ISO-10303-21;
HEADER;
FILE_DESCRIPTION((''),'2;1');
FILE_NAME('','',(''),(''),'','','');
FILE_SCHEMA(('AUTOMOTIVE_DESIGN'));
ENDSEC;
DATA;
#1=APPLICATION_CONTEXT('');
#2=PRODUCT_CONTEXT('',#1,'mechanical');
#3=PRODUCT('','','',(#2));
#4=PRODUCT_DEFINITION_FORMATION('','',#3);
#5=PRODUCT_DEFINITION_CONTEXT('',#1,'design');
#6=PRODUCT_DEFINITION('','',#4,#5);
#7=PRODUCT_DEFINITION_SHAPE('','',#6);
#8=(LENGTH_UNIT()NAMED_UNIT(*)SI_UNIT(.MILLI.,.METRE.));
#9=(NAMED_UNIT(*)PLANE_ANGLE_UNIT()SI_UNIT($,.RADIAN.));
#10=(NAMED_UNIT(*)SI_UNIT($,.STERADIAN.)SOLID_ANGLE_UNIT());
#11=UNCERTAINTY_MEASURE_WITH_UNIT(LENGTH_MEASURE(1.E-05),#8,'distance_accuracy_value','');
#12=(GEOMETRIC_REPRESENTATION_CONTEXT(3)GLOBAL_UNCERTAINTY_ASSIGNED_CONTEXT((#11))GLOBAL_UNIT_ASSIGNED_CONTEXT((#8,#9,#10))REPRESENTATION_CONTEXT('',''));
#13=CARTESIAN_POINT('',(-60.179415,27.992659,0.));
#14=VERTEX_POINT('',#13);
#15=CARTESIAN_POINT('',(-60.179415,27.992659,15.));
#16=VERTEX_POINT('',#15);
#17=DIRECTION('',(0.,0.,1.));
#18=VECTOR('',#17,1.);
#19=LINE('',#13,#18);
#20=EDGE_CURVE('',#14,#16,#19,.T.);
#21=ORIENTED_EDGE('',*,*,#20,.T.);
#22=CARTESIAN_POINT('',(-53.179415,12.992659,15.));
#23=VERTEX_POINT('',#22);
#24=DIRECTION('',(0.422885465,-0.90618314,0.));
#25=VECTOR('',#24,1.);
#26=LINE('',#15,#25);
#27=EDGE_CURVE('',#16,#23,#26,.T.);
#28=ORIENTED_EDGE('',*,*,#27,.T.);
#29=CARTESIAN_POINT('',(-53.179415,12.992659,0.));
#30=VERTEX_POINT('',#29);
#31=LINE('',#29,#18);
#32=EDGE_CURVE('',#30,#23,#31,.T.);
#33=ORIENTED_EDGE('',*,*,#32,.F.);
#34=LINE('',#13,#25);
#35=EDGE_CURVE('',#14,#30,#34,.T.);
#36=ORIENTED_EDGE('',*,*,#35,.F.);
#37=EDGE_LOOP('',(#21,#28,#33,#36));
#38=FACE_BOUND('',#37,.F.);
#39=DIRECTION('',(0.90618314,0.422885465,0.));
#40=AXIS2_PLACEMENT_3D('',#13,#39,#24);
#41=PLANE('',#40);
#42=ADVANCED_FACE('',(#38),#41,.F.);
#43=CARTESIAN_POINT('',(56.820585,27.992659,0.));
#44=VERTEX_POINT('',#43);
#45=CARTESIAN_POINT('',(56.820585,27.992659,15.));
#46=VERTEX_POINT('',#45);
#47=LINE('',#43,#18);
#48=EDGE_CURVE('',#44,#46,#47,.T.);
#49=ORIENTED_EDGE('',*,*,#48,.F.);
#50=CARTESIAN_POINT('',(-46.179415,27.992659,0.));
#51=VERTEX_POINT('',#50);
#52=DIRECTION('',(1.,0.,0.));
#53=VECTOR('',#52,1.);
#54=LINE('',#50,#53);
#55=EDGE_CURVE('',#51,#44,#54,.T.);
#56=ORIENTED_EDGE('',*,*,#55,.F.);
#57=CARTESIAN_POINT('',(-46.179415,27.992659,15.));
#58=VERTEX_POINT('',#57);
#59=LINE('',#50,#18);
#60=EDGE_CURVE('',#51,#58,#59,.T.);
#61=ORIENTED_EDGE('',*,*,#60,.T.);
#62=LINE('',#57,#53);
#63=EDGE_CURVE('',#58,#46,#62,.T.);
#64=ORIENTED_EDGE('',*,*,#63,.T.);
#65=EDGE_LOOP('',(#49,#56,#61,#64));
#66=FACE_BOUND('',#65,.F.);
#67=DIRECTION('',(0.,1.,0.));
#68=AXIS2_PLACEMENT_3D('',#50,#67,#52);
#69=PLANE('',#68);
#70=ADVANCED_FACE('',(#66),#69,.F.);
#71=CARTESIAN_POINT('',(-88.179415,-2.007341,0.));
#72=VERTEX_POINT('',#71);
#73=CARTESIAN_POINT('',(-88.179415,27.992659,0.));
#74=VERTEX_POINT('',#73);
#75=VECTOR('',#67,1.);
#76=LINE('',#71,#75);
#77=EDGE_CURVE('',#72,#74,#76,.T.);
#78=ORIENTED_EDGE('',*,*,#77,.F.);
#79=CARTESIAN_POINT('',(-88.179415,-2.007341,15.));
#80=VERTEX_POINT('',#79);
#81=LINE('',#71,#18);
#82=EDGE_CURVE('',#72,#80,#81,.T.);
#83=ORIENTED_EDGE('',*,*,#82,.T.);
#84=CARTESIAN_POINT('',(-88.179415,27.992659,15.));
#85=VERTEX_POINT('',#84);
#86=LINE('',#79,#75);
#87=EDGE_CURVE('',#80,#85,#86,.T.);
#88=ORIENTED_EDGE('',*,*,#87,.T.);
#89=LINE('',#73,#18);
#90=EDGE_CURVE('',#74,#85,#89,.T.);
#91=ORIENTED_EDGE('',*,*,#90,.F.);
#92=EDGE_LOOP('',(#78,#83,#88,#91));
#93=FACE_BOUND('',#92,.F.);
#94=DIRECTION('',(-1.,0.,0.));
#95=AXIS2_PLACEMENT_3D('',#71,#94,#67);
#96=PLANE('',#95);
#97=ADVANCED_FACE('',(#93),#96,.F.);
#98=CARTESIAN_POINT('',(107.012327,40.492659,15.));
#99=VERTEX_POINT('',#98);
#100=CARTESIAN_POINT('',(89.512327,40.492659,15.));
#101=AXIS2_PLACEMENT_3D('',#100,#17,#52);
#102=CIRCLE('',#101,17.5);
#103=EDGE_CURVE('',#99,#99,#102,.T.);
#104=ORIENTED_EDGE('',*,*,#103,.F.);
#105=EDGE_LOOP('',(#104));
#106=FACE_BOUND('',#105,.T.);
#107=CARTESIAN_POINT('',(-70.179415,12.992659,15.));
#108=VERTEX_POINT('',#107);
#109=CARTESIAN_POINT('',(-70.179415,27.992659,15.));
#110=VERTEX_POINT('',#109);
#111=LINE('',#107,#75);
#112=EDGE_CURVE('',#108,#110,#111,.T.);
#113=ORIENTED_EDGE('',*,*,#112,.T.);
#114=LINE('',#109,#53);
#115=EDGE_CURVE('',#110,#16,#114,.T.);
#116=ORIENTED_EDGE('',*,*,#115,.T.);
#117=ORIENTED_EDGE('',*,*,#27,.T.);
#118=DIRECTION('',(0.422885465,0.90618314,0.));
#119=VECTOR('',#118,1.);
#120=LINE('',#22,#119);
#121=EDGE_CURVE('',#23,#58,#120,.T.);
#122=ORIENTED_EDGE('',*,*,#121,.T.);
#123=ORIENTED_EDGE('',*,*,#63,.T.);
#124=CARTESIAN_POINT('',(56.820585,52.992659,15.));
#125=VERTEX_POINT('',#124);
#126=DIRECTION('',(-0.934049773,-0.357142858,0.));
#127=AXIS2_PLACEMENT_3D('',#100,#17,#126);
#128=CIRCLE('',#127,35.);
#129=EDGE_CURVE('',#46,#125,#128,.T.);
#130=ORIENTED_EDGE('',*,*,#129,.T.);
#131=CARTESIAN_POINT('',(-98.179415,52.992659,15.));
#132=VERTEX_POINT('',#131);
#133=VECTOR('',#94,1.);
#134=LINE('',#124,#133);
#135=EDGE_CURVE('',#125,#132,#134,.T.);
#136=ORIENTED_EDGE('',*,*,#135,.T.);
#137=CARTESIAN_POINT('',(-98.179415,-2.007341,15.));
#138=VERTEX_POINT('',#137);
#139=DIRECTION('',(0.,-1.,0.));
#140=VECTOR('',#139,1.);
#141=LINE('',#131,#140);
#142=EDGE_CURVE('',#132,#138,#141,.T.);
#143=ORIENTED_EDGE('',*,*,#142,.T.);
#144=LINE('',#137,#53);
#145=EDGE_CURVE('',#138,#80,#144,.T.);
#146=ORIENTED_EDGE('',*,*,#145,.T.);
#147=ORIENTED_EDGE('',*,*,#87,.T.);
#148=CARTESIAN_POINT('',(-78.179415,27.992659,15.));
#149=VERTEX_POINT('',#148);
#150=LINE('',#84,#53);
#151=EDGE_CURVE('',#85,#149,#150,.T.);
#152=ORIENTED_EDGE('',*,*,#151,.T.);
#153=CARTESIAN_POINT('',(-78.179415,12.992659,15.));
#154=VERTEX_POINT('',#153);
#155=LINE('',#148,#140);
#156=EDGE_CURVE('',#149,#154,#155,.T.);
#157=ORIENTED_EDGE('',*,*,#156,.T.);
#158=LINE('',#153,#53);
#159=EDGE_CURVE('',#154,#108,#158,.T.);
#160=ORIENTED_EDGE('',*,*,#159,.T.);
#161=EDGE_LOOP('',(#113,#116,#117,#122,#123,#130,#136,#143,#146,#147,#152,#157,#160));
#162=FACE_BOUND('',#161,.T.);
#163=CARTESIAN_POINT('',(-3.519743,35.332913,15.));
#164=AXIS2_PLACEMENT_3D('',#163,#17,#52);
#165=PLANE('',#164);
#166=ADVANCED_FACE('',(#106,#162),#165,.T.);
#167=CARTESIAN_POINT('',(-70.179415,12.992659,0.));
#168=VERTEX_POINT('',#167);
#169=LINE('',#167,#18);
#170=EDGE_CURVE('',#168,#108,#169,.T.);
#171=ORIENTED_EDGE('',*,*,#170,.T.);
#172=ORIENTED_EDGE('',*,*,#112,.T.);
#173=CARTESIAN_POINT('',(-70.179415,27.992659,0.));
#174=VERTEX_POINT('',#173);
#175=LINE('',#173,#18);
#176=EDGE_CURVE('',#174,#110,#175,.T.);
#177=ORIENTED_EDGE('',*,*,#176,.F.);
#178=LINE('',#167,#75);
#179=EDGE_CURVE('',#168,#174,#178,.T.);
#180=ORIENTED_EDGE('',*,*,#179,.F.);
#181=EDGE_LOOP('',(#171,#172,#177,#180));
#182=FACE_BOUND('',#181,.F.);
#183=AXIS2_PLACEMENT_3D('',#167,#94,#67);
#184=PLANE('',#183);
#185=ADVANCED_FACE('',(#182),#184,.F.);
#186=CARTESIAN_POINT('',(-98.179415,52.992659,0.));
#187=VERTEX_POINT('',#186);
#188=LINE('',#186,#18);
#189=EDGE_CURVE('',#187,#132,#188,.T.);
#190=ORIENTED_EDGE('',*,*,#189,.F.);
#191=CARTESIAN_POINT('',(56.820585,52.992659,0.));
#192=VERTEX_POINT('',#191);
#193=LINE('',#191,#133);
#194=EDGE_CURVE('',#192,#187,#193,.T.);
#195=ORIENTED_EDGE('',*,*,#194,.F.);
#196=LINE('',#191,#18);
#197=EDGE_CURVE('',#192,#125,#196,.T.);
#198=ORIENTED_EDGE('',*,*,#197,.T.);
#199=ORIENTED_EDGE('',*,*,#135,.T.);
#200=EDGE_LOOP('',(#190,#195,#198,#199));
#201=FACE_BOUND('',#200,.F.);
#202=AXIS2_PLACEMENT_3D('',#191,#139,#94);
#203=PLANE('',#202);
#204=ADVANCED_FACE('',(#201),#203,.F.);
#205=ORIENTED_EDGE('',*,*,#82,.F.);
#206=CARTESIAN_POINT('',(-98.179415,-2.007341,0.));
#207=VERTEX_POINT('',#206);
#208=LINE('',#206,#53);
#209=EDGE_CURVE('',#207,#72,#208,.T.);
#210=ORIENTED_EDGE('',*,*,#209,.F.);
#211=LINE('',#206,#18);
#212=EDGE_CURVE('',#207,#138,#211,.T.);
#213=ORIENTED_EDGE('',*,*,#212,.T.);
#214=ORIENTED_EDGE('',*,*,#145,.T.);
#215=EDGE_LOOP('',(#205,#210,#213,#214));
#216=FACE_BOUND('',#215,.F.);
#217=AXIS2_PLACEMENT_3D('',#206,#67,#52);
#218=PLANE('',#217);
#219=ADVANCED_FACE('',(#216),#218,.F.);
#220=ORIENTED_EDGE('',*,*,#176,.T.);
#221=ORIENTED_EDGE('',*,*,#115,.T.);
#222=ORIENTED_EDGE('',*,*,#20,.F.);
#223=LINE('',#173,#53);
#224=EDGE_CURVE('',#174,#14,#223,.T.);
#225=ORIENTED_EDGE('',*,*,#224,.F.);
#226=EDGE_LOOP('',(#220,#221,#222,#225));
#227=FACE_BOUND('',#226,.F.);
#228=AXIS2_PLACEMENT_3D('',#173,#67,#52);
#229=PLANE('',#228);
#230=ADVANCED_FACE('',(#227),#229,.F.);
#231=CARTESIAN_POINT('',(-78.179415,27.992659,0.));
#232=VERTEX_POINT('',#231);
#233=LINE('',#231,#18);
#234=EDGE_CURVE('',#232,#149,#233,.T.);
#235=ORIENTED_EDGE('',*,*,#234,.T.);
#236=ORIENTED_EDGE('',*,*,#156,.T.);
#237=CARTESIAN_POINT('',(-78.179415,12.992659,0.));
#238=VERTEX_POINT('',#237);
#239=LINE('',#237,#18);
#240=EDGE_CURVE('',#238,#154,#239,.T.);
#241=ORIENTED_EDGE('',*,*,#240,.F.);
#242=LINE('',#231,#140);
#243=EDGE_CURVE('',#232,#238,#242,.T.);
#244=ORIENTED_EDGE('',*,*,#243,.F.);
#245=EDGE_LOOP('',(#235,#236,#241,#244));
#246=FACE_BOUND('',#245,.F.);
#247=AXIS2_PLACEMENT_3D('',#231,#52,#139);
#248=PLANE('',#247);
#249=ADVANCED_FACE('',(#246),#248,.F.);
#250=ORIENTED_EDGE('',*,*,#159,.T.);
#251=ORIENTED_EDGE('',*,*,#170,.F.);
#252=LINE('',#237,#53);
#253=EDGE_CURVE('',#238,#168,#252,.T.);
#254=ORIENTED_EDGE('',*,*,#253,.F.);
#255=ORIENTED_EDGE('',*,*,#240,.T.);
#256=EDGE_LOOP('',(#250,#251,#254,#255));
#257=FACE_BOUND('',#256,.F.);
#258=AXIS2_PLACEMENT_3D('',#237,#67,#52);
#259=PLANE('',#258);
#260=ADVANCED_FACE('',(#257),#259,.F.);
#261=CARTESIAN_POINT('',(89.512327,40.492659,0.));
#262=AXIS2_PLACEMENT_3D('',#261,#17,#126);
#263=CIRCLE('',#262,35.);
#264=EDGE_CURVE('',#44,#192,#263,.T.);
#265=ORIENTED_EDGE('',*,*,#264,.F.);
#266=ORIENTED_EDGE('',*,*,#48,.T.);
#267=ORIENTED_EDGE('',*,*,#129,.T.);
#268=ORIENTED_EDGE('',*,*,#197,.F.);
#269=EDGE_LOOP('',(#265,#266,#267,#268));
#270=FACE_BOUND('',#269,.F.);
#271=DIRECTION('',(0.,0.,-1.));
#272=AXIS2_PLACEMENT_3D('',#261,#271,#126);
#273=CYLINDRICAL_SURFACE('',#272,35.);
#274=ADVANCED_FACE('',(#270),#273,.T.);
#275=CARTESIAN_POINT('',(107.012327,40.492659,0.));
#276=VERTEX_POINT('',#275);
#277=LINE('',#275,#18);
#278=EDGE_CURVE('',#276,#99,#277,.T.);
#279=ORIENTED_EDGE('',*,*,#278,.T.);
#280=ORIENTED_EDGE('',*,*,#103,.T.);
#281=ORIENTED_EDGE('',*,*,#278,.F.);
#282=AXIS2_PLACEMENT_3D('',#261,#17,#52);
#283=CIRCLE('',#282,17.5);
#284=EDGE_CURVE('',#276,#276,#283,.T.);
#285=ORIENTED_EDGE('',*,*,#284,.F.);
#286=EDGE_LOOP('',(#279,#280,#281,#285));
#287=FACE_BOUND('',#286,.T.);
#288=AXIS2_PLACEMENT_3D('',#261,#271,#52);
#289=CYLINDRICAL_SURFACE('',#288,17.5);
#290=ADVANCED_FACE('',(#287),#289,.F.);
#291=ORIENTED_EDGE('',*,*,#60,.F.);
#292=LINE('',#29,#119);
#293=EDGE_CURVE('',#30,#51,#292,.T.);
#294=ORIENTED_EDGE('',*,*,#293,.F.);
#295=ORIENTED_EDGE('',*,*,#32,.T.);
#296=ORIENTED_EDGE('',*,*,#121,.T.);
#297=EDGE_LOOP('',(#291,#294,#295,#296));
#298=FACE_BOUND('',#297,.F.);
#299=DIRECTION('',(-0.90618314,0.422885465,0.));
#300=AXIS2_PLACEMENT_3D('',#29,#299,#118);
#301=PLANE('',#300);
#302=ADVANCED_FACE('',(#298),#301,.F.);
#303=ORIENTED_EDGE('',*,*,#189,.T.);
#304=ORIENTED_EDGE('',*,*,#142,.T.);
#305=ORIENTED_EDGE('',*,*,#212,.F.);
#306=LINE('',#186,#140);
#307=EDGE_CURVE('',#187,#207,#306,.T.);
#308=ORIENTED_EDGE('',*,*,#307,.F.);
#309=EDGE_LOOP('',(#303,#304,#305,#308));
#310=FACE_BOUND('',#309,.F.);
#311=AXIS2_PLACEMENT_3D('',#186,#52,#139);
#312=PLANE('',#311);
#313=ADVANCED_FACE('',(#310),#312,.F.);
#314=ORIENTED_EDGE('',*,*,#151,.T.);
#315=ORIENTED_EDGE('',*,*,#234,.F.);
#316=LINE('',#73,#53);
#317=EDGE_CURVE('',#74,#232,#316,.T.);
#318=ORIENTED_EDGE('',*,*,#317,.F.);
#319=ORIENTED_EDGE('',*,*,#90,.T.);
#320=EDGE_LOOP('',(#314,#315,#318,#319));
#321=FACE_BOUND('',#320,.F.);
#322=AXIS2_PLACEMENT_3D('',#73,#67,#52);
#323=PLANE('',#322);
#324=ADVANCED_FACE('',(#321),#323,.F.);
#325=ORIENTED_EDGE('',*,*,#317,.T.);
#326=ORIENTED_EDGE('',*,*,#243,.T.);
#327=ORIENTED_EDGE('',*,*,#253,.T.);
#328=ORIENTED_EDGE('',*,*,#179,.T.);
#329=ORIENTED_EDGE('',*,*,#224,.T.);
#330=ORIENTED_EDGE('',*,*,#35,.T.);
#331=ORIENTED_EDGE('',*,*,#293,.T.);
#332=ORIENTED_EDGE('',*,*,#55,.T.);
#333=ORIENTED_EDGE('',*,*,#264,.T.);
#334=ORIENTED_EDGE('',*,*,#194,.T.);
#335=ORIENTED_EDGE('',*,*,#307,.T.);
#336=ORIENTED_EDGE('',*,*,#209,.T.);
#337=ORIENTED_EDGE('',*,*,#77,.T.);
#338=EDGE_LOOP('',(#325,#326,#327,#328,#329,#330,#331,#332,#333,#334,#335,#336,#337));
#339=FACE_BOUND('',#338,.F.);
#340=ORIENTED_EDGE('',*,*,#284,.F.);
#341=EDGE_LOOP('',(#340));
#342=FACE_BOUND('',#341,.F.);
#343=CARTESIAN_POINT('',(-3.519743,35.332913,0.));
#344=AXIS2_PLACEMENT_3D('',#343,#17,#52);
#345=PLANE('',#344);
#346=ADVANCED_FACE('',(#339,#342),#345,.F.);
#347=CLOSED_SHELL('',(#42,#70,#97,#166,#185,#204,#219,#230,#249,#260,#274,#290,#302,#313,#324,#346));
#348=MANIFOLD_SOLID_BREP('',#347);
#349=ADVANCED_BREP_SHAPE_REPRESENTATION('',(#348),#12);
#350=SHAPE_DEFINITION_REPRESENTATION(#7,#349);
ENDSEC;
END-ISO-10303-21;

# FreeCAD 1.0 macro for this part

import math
import FreeCAD as App
import Part
import Sketcher

V = App.Vector

doc = App.newDocument("Part")
body = doc.addObject("PartDesign::Body", "Body")

sketch1 = body.newObject("Sketcher::SketchObject", "Sketch")
sketch1.AttachmentSupport = (doc.getObject("XY_Plane"), [""])
sketch1.MapMode = "FlatFace"
sketch1.addGeometry(Part.LineSegment(V(-88, -2, 0), V(-88, 28, 0)), False)
sketch1.addGeometry(Part.LineSegment(V(-88, 28, 0), V(-78, 28, 0)), False)
sketch1.addGeometry(Part.LineSegment(V(-78, 28, 0), V(-78, 13, 0)), False)
sketch1.addGeometry(Part.LineSegment(V(-78, 13, 0), V(-70, 13, 0)), False)
sketch1.addGeometry(Part.LineSegment(V(-70, 13, 0), V(-70, 28, 0)), False)
sketch1.addGeometry(Part.LineSegment(V(-70, 28, 0), V(-60, 28, 0)), False)
sketch1.addGeometry(Part.LineSegment(V(-60, 28, 0), V(-53, 13, 0)), False)
sketch1.addGeometry(Part.LineSegment(V(-53, 13, 0), V(-46, 28, 0)), False)
sketch1.addGeometry(Part.LineSegment(V(-46, 28, 0), V(57, 28, 0)), False)
sketch1.addGeometry(Part.ArcOfCircle(Part.Circle(V(90, 40, 0), V(0, 0, 1), 35), math.radians(-159), math.radians(159)), False)
sketch1.addGeometry(Part.LineSegment(V(57, 53, 0), V(-98, 53, 0)), False)
sketch1.addGeometry(Part.LineSegment(V(-98, 53, 0), V(-98, -2, 0)), False)
sketch1.addGeometry(Part.LineSegment(V(-98, -2, 0), V(-88, -2, 0)), False)
sketch1.addGeometry(Part.Circle(V(90, 40, 0), V(0, 0, 1), 18), False)
sketch1.addConstraint(Sketcher.Constraint("Coincident", 0, 2, 1, 1))
sketch1.addConstraint(Sketcher.Constraint("Coincident", 1, 2, 2, 1))
sketch1.addConstraint(Sketcher.Constraint("Coincident", 2, 2, 3, 1))
sketch1.addConstraint(Sketcher.Constraint("Coincident", 3, 2, 4, 1))
sketch1.addConstraint(Sketcher.Constraint("Coincident", 4, 2, 5, 1))
sketch1.addConstraint(Sketcher.Constraint("Coincident", 5, 2, 6, 1))
sketch1.addConstraint(Sketcher.Constraint("Coincident", 6, 2, 7, 1))
sketch1.addConstraint(Sketcher.Constraint("Coincident", 7, 2, 8, 1))
sketch1.addConstraint(Sketcher.Constraint("Coincident", 8, 2, 9, 1))
sketch1.addConstraint(Sketcher.Constraint("Coincident", 9, 2, 10, 1))
sketch1.addConstraint(Sketcher.Constraint("Coincident", 10, 2, 11, 1))
sketch1.addConstraint(Sketcher.Constraint("Coincident", 11, 2, 12, 1))
sketch1.addConstraint(Sketcher.Constraint("Coincident", 12, 2, 0, 1))
sketch1.addConstraint(Sketcher.Constraint("Vertical", 0))
sketch1.addConstraint(Sketcher.Constraint("Horizontal", 1))
sketch1.addConstraint(Sketcher.Constraint("Vertical", 2))
sketch1.addConstraint(Sketcher.Constraint("Horizontal", 3))
sketch1.addConstraint(Sketcher.Constraint("Vertical", 4))
sketch1.addConstraint(Sketcher.Constraint("Horizontal", 5))
sketch1.addConstraint(Sketcher.Constraint("Horizontal", 8))
sketch1.addConstraint(Sketcher.Constraint("Horizontal", 10))
sketch1.addConstraint(Sketcher.Constraint("Vertical", 11))
sketch1.addConstraint(Sketcher.Constraint("Horizontal", 12))
sketch1.addConstraint(Sketcher.Constraint("Coincident", 13, 3, 9, 3))
sketch1.addConstraint(Sketcher.Constraint("Horizontal", 1, 2, 4, 2))
sketch1.addConstraint(Sketcher.Constraint("Horizontal", 3, 2, 6, 2))
sketch1.addConstraint(Sketcher.Constraint("Horizontal", 5, 2, 7, 2))
sketch1.addConstraint(Sketcher.Constraint("Vertical", 8, 2, 9, 2))
sketch1.addConstraint(Sketcher.Constraint("Equal", 1, 5))
sketch1.addConstraint(Sketcher.Constraint("Equal", 5, 12))
sketch1.addConstraint(Sketcher.Constraint("Equal", 6, 7))
sketch1.addConstraint(Sketcher.Constraint("Diameter", 13, 35.0))
sketch1.addConstraint(Sketcher.Constraint("Radius", 9, 35.0))
sketch1.addConstraint(Sketcher.Constraint("DistanceX", 1, 1, 1, 2, 10.0))
sketch1.addConstraint(Sketcher.Constraint("DistanceX", 3, 1, 3, 2, 8.0))
sketch1.addConstraint(Sketcher.Constraint("DistanceX", 8, 1, 8, 2, 103.0))
sketch1.addConstraint(Sketcher.Constraint("DistanceX", 10, 2, 10, 1, 155.0))
sketch1.addConstraint(Sketcher.Constraint("DistanceY", 0, 1, 0, 2, 30.0))
sketch1.addConstraint(Sketcher.Constraint("DistanceY", 2, 2, 2, 1, 15.0))
sketch1.addConstraint(Sketcher.Constraint("DistanceY", 11, 2, 11, 1, 55.0))
sketch1.addConstraint(Sketcher.Constraint("DistanceY", -1, 1, 9, 3, 40.492659))
sketch1.addConstraint(Sketcher.Constraint("DistanceX", -1, 1, 9, 3, 89.512327))
pad1 = body.newObject("PartDesign::Pad", "Pad")
pad1.Profile = sketch1
pad1.Length = 15

doc.recompute()
